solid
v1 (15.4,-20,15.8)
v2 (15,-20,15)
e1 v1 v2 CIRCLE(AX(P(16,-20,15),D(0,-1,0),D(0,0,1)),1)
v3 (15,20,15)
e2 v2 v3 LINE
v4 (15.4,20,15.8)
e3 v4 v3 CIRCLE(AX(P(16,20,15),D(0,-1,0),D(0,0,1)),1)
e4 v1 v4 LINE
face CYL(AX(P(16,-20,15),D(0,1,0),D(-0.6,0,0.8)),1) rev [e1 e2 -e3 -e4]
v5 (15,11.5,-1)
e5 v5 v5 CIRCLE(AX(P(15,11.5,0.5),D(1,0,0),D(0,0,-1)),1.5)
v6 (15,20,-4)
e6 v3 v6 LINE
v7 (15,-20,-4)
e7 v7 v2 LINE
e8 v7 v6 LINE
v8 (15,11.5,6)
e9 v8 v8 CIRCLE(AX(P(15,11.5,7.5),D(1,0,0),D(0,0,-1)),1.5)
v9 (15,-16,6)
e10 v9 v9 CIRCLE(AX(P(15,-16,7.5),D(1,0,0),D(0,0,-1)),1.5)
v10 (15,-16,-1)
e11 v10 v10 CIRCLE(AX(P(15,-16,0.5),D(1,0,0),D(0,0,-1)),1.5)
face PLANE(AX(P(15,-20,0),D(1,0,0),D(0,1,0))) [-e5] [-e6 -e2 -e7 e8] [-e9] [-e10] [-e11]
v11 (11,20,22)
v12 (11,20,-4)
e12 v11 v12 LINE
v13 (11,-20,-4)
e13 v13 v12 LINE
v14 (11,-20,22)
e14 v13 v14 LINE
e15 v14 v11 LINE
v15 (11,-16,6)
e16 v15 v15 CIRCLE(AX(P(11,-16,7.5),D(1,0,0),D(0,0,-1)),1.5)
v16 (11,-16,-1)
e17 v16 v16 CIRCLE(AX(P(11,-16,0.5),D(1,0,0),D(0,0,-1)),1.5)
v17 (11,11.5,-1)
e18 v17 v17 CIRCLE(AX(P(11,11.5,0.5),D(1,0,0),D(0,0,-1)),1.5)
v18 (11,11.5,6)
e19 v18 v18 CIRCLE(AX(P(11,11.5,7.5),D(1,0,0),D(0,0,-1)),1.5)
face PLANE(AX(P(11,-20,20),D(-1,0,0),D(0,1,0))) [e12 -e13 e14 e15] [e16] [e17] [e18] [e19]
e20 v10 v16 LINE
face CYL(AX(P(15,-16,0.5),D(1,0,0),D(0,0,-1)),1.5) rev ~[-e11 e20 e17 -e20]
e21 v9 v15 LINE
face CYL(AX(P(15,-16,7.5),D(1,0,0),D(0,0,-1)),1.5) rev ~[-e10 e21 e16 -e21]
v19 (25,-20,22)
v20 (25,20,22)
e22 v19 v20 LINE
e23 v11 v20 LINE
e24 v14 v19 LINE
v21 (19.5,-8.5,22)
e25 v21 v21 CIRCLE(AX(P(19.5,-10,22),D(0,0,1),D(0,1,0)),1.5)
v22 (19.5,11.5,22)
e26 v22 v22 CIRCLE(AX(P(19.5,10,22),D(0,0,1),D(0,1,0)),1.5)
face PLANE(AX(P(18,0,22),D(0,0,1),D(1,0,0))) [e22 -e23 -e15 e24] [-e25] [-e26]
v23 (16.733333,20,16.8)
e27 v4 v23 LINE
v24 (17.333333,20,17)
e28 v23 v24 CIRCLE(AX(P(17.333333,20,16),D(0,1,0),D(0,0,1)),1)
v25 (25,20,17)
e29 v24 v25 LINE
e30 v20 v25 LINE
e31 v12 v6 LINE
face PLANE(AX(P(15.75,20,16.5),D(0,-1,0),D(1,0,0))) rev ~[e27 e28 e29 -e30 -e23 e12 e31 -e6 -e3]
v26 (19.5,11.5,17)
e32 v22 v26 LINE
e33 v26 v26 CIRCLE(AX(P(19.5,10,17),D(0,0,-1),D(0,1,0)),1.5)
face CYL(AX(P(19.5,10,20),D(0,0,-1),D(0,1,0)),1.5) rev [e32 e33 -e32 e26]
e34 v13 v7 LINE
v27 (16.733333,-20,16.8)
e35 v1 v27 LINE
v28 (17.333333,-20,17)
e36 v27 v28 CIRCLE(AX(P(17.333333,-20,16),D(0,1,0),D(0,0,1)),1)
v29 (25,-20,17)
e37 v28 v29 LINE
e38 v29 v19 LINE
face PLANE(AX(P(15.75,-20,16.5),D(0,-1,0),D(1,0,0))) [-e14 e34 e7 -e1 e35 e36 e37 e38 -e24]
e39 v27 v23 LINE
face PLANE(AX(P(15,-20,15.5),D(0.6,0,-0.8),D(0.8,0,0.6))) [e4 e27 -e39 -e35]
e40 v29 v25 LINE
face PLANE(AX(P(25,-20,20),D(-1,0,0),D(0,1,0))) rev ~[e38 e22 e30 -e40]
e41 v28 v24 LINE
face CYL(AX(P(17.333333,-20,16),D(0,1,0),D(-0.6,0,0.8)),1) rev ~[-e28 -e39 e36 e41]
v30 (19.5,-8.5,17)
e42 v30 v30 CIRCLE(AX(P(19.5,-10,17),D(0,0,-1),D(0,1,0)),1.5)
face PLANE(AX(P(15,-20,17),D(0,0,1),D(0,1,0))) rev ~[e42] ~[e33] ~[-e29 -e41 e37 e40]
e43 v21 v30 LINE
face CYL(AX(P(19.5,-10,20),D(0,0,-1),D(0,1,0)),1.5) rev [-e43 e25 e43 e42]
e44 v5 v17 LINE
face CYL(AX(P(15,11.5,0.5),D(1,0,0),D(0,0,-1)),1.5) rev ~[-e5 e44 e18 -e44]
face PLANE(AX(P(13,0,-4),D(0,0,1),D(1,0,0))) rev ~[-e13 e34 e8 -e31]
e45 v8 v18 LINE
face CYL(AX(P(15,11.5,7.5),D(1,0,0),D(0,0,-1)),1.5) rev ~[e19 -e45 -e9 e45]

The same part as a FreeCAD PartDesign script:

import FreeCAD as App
import Part
import Sketcher
from FreeCAD import Vector
Q = App.Units.Quantity


def edges_at(feature, points):
    """Names of the edges that pass closest to the given points."""
    edges = feature.Shape.Edges
    near = lambda p: min(range(len(edges)), key=lambda i: edges[i].distToShape(Part.Vertex(*p))[0])
    return sorted({f"Edge{near(p) + 1}" for p in points})

doc = App.newDocument("Part")
params = doc.addObject("Spreadsheet::Sheet", "Params")
for row, (alias, value) in enumerate([
    ("sketch1_width", "4 mm"),
    ("sketch1_height", "40 mm"),
    ("pad1_length", "20 mm"),
    ("pad1_length2", "4 mm"),
    ("sketch2_diameter", "3 mm"),
    ("sketch3_width", "40 mm"),
    ("sketch3_height", "3 mm"),
    ("pad2_length", "10 mm"),
    ("sketch4_diameter", "3 mm"),
    ("sketch5_diameter", "3 mm"),
    ("sketch5_width", "14 mm"),
    ("sketch5_height", "40 mm"),
    ("pad3_length", "2 mm"),
    ("sketch6_width", "2 mm"),
    ("sketch6_height", "1.5 mm"),
    ("pad4_length", "40 mm"),
    ("fillet_radius", "1 mm"),
], start=1):
    params.set(f"A{row}", alias)
    params.set(f"B{row}", "=" + value)
    params.setAlias(f"B{row}", alias)

body = doc.addObject("PartDesign::Body", "Body")

# Sketch on XY plane
sketch1 = doc.addObject("Sketcher::SketchObject", "Sketch")
body.addObject(sketch1)
sketch1.AttachmentSupport = (doc.XY_Plane, [""])
sketch1.MapMode = "FlatFace"
sketch1.addGeometry([
    Part.LineSegment(Vector(11, 20, 0), Vector(11, -20, 0)),
    Part.LineSegment(Vector(11, -20, 0), Vector(15, -20, 0)),
    Part.LineSegment(Vector(15, -20, 0), Vector(15, 20, 0)),
    Part.LineSegment(Vector(15, 20, 0), Vector(11, 20, 0)),
], False)
sketch1.addConstraint([
    Sketcher.Constraint("Coincident", 0, 2, 1, 1),
    Sketcher.Constraint("Coincident", 1, 2, 2, 1),
    Sketcher.Constraint("Coincident", 2, 2, 3, 1),
    Sketcher.Constraint("Coincident", 3, 2, 0, 1),
    Sketcher.Constraint("Vertical", 0),
    Sketcher.Constraint("Horizontal", 1),
    Sketcher.Constraint("Vertical", 2),
    Sketcher.Constraint("Horizontal", 3),
    Sketcher.Constraint("DistanceX", 1, 1, 1, 2, Q("4 mm")),
    Sketcher.Constraint("DistanceY", 0, 2, 0, 1, Q("40 mm")),
    Sketcher.Constraint("DistanceX", -1, 1, 0, 2, Q("11 mm")),
    Sketcher.Constraint("DistanceY", 0, 2, -1, 1, Q("20 mm")),
])
sketch1.setExpression("Constraints[8]", "Params.sketch1_width")
sketch1.setExpression("Constraints[9]", "Params.sketch1_height")
pad1 = doc.addObject("PartDesign::Pad", "Pad")
body.addObject(pad1)
pad1.Profile = sketch1
pad1.Type = "TwoLengths"
pad1.setExpression("Length", "Params.pad1_length")
pad1.setExpression("Length2", "Params.pad1_length2")

# Sketch on YZ plane
sketch2 = doc.addObject("Sketcher::SketchObject", "Sketch001")
body.addObject(sketch2)
sketch2.AttachmentSupport = (doc.YZ_Plane, [""])
sketch2.MapMode = "FlatFace"
sketch2.AttachmentOffset = App.Placement(Vector(0, 0, 15), App.Rotation())
sketch2.addGeometry([
    Part.Circle(Vector(-16, 7.5, 0), Vector(0, 0, 1), 1.5),
    Part.Circle(Vector(11.5, 7.5, 0), Vector(0, 0, 1), 1.5),
    Part.Circle(Vector(11.5, 0.5, 0), Vector(0, 0, 1), 1.5),
    Part.Circle(Vector(-16, 0.5, 0), Vector(0, 0, 1), 1.5),
], False)
sketch2.addConstraint([
    Sketcher.Constraint("Equal", 0, 1),
    Sketcher.Constraint("Equal", 1, 2),
    Sketcher.Constraint("Equal", 2, 3),
    Sketcher.Constraint("Horizontal", 0, 3, 1, 3),
    Sketcher.Constraint("Horizontal", 2, 3, 3, 3),
    Sketcher.Constraint("Vertical", 1, 3, 2, 3),
    Sketcher.Constraint("Vertical", 0, 3, 3, 3),
    Sketcher.Constraint("Diameter", 0, Q("3 mm")),
    Sketcher.Constraint("DistanceX", 0, 3, -1, 1, Q("16 mm")),
    Sketcher.Constraint("DistanceY", 2, 3, 1, 3, Q("7 mm")),
    Sketcher.Constraint("DistanceY", -1, 1, 0, 3, Q("7.5 mm")),
    Sketcher.Constraint("DistanceX", -1, 1, 1, 3, Q("11.5 mm")),
])
sketch2.setExpression("Constraints[7]", "Params.sketch2_diameter")
pocket1 = doc.addObject("PartDesign::Pocket", "Pocket")
body.addObject(pocket1)
pocket1.Profile = sketch2
pocket1.Type = "ThroughAll"

# Sketch on YZ plane
sketch3 = doc.addObject("Sketcher::SketchObject", "Sketch002")
body.addObject(sketch3)
sketch3.AttachmentSupport = (doc.YZ_Plane, [""])
sketch3.MapMode = "FlatFace"
sketch3.AttachmentOffset = App.Placement(Vector(0, 0, 15), App.Rotation())
sketch3.addGeometry([
    Part.LineSegment(Vector(20, 20, 0), Vector(-20, 20, 0)),
    Part.LineSegment(Vector(-20, 20, 0), Vector(-20, 17, 0)),
    Part.LineSegment(Vector(-20, 17, 0), Vector(20, 17, 0)),
    Part.LineSegment(Vector(20, 17, 0), Vector(20, 20, 0)),
], False)
sketch3.addConstraint([
    Sketcher.Constraint("Coincident", 0, 2, 1, 1),
    Sketcher.Constraint("Coincident", 1, 2, 2, 1),
    Sketcher.Constraint("Coincident", 2, 2, 3, 1),
    Sketcher.Constraint("Coincident", 3, 2, 0, 1),
    Sketcher.Constraint("Horizontal", 0),
    Sketcher.Constraint("Vertical", 1),
    Sketcher.Constraint("Horizontal", 2),
    Sketcher.Constraint("Vertical", 3),
    Sketcher.Constraint("DistanceX", 0, 2, 0, 1, Q("40 mm")),
    Sketcher.Constraint("DistanceY", 1, 2, 1, 1, Q("3 mm")),
    Sketcher.Constraint("DistanceX", 0, 2, -1, 1, Q("20 mm")),
    Sketcher.Constraint("DistanceY", -1, 1, 0, 2, Q("20 mm")),
])
sketch3.setExpression("Constraints[8]", "Params.sketch3_width")
sketch3.setExpression("Constraints[9]", "Params.sketch3_height")
pad2 = doc.addObject("PartDesign::Pad", "Pad001")
body.addObject(pad2)
pad2.Profile = sketch3
pad2.setExpression("Length", "Params.pad2_length")

# Sketch on XY plane
sketch4 = doc.addObject("Sketcher::SketchObject", "Sketch003")
body.addObject(sketch4)
sketch4.AttachmentSupport = (doc.XY_Plane, [""])
sketch4.MapMode = "FlatFace"
sketch4.AttachmentOffset = App.Placement(Vector(0, 0, 17), App.Rotation())
sketch4.addGeometry([
    Part.Circle(Vector(19.5, -10, 0), Vector(0, 0, 1), 1.5),
    Part.Circle(Vector(19.5, 10, 0), Vector(0, 0, 1), 1.5),
], False)
sketch4.addConstraint([
    Sketcher.Constraint("Equal", 0, 1),
    Sketcher.Constraint("Symmetric", 0, 3, 1, 3, -1),
    Sketcher.Constraint("Diameter", 0, Q("3 mm")),
    Sketcher.Constraint("DistanceY", 0, 3, -1, 1, Q("10 mm")),
    Sketcher.Constraint("DistanceX", -1, 1, 0, 3, Q("19.5 mm")),
])
sketch4.setExpression("Constraints[2]", "Params.sketch4_diameter")
pocket2 = doc.addObject("PartDesign::Pocket", "Pocket001")
body.addObject(pocket2)
pocket2.Profile = sketch4
pocket2.Type = "ThroughAll"
pocket2.Reversed = True

# Sketch on XY plane
sketch5 = doc.addObject("Sketcher::SketchObject", "Sketch004")
body.addObject(sketch5)
sketch5.AttachmentSupport = (doc.XY_Plane, [""])
sketch5.MapMode = "FlatFace"
sketch5.AttachmentOffset = App.Placement(Vector(0, 0, 20), App.Rotation())
sketch5.addGeometry([
    Part.LineSegment(Vector(11, 20, 0), Vector(11, -20, 0)),  # 0
    Part.LineSegment(Vector(11, -20, 0), Vector(25, -20, 0)),  # 1
    Part.LineSegment(Vector(25, -20, 0), Vector(25, 20, 0)),  # 2
    Part.LineSegment(Vector(25, 20, 0), Vector(11, 20, 0)),  # 3
    Part.Circle(Vector(19.5, -10, 0), Vector(0, 0, 1), 1.5),  # 4
    Part.Circle(Vector(19.5, 10, 0), Vector(0, 0, 1), 1.5),  # 5
], False)
sketch5.addConstraint([
    Sketcher.Constraint("Coincident", 0, 2, 1, 1),
    Sketcher.Constraint("Coincident", 1, 2, 2, 1),
    Sketcher.Constraint("Coincident", 2, 2, 3, 1),
    Sketcher.Constraint("Coincident", 3, 2, 0, 1),
    Sketcher.Constraint("Vertical", 0),
    Sketcher.Constraint("Horizontal", 1),
    Sketcher.Constraint("Vertical", 2),
    Sketcher.Constraint("Horizontal", 3),
    Sketcher.Constraint("Equal", 4, 5),
    Sketcher.Constraint("Symmetric", 4, 3, 5, 3, -1),
    Sketcher.Constraint("Diameter", 4, Q("3 mm")),
    Sketcher.Constraint("DistanceX", 1, 1, 1, 2, Q("14 mm")),
    Sketcher.Constraint("DistanceY", 0, 2, 0, 1, Q("40 mm")),
    Sketcher.Constraint("DistanceY", 4, 3, -1, 1, Q("10 mm")),
    Sketcher.Constraint("DistanceX", -1, 1, 0, 2, Q("11 mm")),
    Sketcher.Constraint("DistanceY", 0, 2, -1, 1, Q("20 mm")),
    Sketcher.Constraint("DistanceX", -1, 1, 4, 3, Q("19.5 mm")),
])
sketch5.setExpression("Constraints[10]", "Params.sketch5_diameter")
sketch5.setExpression("Constraints[11]", "Params.sketch5_width")
sketch5.setExpression("Constraints[12]", "Params.sketch5_height")
pad3 = doc.addObject("PartDesign::Pad", "Pad002")
body.addObject(pad3)
pad3.Profile = sketch5
pad3.setExpression("Length", "Params.pad3_length")

# Sketch on XZ plane
sketch6 = doc.addObject("Sketcher::SketchObject", "Sketch005")
body.addObject(sketch6)
sketch6.AttachmentSupport = (doc.XZ_Plane, [""])
sketch6.MapMode = "FlatFace"
sketch6.AttachmentOffset = App.Placement(Vector(0, 0, 20), App.Rotation())
sketch6.addGeometry([
    Part.LineSegment(Vector(17, 17, 0), Vector(15, 17, 0)),
    Part.LineSegment(Vector(15, 17, 0), Vector(15, 15.5, 0)),
    Part.LineSegment(Vector(15, 15.5, 0), Vector(17, 17, 0)),
], False)
sketch6.addConstraint([
    Sketcher.Constraint("Coincident", 0, 2, 1, 1),
    Sketcher.Constraint("Coincident", 1, 2, 2, 1),
    Sketcher.Constraint("Coincident", 2, 2, 0, 1),
    Sketcher.Constraint("Horizontal", 0),
    Sketcher.Constraint("Vertical", 1),
    Sketcher.Constraint("DistanceX", 0, 2, 0, 1, Q("2 mm")),
    Sketcher.Constraint("DistanceY", 1, 2, 1, 1, Q("1.5 mm")),
    Sketcher.Constraint("DistanceX", -1, 1, 0, 2, Q("15 mm")),
    Sketcher.Constraint("DistanceY", -1, 1, 0, 2, Q("17 mm")),
])
sketch6.setExpression("Constraints[5]", "Params.sketch6_width")
sketch6.setExpression("Constraints[6]", "Params.sketch6_height")
pad4 = doc.addObject("PartDesign::Pad", "Pad003")
body.addObject(pad4)
pad4.Profile = sketch6
pad4.setExpression("Length", "Params.pad4_length")
pad4.Reversed = True
doc.recompute()

fillet = doc.addObject("PartDesign::Fillet", "Fillet")
body.addObject(fillet)
fillet.Base = (pad4, edges_at(pad4, [(15, 0, 15.5), (17, 0, 17)]))
fillet.setExpression("Radius", "Params.fillet_radius")

doc.recompute()
